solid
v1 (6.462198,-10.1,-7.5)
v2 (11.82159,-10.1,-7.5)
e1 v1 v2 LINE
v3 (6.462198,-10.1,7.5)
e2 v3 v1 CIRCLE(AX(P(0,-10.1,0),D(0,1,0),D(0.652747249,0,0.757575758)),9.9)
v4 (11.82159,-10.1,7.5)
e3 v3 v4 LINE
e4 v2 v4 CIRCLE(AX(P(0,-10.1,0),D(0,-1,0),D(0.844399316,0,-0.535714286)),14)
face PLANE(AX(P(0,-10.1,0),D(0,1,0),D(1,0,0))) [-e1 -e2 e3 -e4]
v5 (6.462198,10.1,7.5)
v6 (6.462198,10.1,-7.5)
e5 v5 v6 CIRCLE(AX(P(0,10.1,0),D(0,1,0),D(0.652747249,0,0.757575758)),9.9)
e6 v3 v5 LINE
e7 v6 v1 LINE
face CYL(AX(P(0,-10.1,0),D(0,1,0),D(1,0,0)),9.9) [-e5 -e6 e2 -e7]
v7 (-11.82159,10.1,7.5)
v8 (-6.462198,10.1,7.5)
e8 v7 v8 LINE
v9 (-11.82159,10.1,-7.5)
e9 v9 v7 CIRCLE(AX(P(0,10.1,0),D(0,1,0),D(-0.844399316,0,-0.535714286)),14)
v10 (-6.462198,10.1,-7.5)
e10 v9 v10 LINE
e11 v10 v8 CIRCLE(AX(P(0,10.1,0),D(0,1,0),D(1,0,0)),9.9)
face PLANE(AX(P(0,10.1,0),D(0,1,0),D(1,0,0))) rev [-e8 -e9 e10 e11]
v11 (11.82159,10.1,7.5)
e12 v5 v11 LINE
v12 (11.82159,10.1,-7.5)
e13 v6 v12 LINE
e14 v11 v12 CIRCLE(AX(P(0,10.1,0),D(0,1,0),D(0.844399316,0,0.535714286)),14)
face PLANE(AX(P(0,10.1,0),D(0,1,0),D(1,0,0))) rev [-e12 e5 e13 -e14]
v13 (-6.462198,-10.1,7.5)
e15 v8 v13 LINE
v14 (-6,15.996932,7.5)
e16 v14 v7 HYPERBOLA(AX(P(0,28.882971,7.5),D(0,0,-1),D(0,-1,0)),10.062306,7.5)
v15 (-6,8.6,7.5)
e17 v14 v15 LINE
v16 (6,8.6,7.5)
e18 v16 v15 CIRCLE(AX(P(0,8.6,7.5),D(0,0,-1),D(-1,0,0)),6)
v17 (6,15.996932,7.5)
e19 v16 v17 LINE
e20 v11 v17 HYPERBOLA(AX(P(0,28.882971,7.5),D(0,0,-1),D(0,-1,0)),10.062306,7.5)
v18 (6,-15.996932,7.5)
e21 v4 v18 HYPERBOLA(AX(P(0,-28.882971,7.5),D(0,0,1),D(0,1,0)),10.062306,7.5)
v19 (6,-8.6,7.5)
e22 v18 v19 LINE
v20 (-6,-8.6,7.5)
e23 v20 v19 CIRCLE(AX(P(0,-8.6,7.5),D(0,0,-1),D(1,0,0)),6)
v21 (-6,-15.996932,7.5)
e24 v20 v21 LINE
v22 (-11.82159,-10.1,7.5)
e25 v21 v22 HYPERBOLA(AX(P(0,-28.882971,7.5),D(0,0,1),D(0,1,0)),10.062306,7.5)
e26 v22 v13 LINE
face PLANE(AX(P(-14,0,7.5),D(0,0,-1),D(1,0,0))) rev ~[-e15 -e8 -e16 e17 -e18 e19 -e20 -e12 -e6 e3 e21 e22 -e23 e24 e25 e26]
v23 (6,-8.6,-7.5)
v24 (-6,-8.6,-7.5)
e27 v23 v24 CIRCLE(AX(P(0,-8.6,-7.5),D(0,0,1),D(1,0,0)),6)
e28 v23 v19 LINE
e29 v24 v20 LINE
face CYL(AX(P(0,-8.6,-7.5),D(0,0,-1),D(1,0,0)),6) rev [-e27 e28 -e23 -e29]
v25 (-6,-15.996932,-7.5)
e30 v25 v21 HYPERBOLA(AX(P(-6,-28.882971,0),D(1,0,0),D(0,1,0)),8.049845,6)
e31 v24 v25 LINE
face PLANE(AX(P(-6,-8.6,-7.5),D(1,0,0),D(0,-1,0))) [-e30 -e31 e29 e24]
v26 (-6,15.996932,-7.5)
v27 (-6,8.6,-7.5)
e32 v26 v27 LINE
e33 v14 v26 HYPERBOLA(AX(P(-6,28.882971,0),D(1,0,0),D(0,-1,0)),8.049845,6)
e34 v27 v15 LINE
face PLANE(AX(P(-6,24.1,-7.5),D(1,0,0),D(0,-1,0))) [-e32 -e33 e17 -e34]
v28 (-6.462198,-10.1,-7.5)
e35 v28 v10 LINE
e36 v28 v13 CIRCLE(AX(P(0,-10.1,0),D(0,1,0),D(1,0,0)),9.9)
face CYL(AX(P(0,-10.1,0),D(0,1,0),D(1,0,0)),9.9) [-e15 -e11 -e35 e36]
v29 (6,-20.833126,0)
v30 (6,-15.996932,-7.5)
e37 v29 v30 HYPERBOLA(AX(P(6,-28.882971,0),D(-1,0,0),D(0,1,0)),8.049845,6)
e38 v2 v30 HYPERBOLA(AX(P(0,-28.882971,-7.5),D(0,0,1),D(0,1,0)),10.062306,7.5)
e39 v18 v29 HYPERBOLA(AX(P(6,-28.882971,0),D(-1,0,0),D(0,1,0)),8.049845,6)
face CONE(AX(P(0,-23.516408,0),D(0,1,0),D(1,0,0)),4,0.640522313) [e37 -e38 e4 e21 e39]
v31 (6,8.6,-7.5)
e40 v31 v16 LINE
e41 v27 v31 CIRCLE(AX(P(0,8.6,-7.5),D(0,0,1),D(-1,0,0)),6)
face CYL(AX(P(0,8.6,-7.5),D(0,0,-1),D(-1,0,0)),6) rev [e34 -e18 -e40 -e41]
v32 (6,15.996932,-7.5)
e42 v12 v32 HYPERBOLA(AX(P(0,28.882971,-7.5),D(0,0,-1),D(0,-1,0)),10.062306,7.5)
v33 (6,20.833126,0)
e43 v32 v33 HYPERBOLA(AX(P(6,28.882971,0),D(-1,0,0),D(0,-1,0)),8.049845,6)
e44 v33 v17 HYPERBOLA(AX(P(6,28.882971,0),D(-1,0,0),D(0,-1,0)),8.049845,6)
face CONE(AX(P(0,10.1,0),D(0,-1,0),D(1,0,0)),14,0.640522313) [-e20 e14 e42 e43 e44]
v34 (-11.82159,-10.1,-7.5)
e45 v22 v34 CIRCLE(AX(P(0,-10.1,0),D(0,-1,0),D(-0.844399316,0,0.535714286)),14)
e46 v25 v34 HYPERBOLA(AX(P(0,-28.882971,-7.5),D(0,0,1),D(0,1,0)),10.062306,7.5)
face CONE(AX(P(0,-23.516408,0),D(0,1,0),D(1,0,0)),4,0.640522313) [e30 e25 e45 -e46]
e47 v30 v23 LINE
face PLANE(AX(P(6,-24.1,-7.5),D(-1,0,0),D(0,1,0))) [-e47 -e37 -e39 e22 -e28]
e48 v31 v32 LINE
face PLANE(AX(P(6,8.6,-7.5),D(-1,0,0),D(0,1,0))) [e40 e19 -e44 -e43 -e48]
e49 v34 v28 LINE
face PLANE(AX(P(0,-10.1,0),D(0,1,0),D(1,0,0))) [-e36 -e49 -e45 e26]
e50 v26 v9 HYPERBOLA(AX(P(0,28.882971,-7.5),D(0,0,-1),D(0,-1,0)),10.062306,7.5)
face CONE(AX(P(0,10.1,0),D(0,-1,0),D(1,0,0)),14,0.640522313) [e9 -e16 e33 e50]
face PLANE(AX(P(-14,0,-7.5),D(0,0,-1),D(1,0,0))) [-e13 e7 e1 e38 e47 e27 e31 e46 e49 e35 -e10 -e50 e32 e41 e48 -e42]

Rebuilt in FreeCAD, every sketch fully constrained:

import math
import FreeCAD as App
import Part
import Sketcher

doc = App.newDocument("Part")
params = doc.addObject("Spreadsheet::Sheet", "Params")
for row, (alias, value) in enumerate([
    ("sketch1_radius", "14 mm"),
    ("sketch1_width", "4.1 mm"),
    ("sketch1_height", "48.2 mm"),
    ("revolution_angle", "360 deg"),
    ("sketch2_width", "28 mm"),
    ("sketch2_height", "15 mm"),
    ("sketch3_radius", "6 mm"),
    ("sketch3_height", "15.5 mm"),
], start=1):
    params.set(f"A{row}", alias)
    params.set(f"B{row}", "=" + value)
    params.setAlias(f"B{row}", alias)

body = doc.addObject("PartDesign::Body", "Body")

# Sketch on XY plane
sketch1 = body.newObject("Sketcher::SketchObject", "Sketch")
sketch1.AttachmentSupport = (doc.getObject("XY_Plane"), [""])
sketch1.MapMode = "FlatFace"
sketch1.addGeometry([
    Part.ArcOfCircle(Part.Circle(App.Vector(0, 10.1, 0), App.Vector(0, 0, 1), 14), math.radians(73.4), math.radians(90)),  # 0
    Part.LineSegment(App.Vector(0, 24.1, 0), App.Vector(0, -24.1, 0)),  # 1
    Part.ArcOfCircle(Part.Circle(App.Vector(0, -10.1, 0), App.Vector(0, 0, 1), 14), math.radians(-90), math.radians(-73.4)),  # 2
    Part.LineSegment(App.Vector(4, -23.5, 0), App.Vector(14, -10.1, 0)),  # 3
    Part.LineSegment(App.Vector(14, -10.1, 0), App.Vector(9.9, -10.1, 0)),  # 4
    Part.LineSegment(App.Vector(9.9, -10.1, 0), App.Vector(9.9, 10.1, 0)),  # 5
    Part.LineSegment(App.Vector(9.9, 10.1, 0), App.Vector(14, 10.1, 0)),  # 6
    Part.LineSegment(App.Vector(14, 10.1, 0), App.Vector(4, 23.5, 0)),  # 7
], False)
sketch1.addConstraint([
    Sketcher.Constraint("Coincident", 0, 2, 1, 1),
    Sketcher.Constraint("Coincident", 1, 2, 2, 1),
    Sketcher.Constraint("Coincident", 2, 2, 3, 1),
    Sketcher.Constraint("Coincident", 3, 2, 4, 1),
    Sketcher.Constraint("Coincident", 4, 2, 5, 1),
    Sketcher.Constraint("Coincident", 5, 2, 6, 1),
    Sketcher.Constraint("Coincident", 6, 2, 7, 1),
    Sketcher.Constraint("Coincident", 7, 2, 0, 1),
    Sketcher.Constraint("Vertical", 1),
    Sketcher.Constraint("Horizontal", 4),
    Sketcher.Constraint("Vertical", 5),
    Sketcher.Constraint("Horizontal", 6),
    Sketcher.Constraint("Equal", 0, 2),
    Sketcher.Constraint("Symmetric", 0, 3, 2, 3, -1, 1),
    Sketcher.Constraint("Symmetric", 3, 2, 6, 2, -1),
    Sketcher.Constraint("Symmetric", 2, 2, 7, 2, -1),
    Sketcher.Constraint("PointOnObject", 0, 2, -2),
    Sketcher.Constraint("Horizontal", 2, 3, 3, 2),
    Sketcher.Constraint("Radius", 0, 14.0),
    Sketcher.Constraint("DistanceX", 4, 2, 4, 1, 4.1),
    Sketcher.Constraint("DistanceY", 1, 2, 1, 1, 48.2),
    Sketcher.Constraint("DistanceX", -1, 1, 2, 2, 4.0),
    Sketcher.Constraint("DistanceX", -1, 1, 3, 2, 14.0),
])
sketch1.setExpression("Constraints[18]", "Params.sketch1_radius")
sketch1.setExpression("Constraints[19]", "Params.sketch1_width")
sketch1.setExpression("Constraints[20]", "Params.sketch1_height")
revolution = body.newObject("PartDesign::Revolution", "Revolution")
revolution.Profile = sketch1
revolution.ReferenceAxis = (sketch1, ["V_Axis"])
revolution.setExpression("Angle", "Params.revolution_angle")

# Sketch on XZ plane
sketch2 = body.newObject("Sketcher::SketchObject", "Sketch001")
sketch2.AttachmentSupport = (doc.getObject("XZ_Plane"), [""])
sketch2.MapMode = "FlatFace"
sketch2.addGeometry([
    Part.LineSegment(App.Vector(-21, -21, 0), App.Vector(-21, 21, 0)),  # 0
    Part.LineSegment(App.Vector(-21, 21, 0), App.Vector(21, 21, 0)),  # 1
    Part.LineSegment(App.Vector(21, 21, 0), App.Vector(21, -21, 0)),  # 2
    Part.LineSegment(App.Vector(21, -21, 0), App.Vector(-21, -21, 0)),  # 3
    Part.LineSegment(App.Vector(14, 8, 0), App.Vector(-14, 8, 0)),  # 4
    Part.LineSegment(App.Vector(-14, 8, 0), App.Vector(-14, -8, 0)),  # 5
    Part.LineSegment(App.Vector(-14, -8, 0), App.Vector(14, -8, 0)),  # 6
    Part.LineSegment(App.Vector(14, -8, 0), App.Vector(14, 8, 0)),  # 7
], False)
sketch2.addConstraint([
    Sketcher.Constraint("Coincident", 0, 2, 1, 1),
    Sketcher.Constraint("Coincident", 1, 2, 2, 1),
    Sketcher.Constraint("Coincident", 2, 2, 3, 1),
    Sketcher.Constraint("Coincident", 3, 2, 0, 1),
    Sketcher.Constraint("Coincident", 4, 2, 5, 1),
    Sketcher.Constraint("Coincident", 5, 2, 6, 1),
    Sketcher.Constraint("Coincident", 6, 2, 7, 1),
    Sketcher.Constraint("Coincident", 7, 2, 4, 1),
    Sketcher.Constraint("Vertical", 0),
    Sketcher.Constraint("Horizontal", 1),
    Sketcher.Constraint("Vertical", 2),
    Sketcher.Constraint("Horizontal", 3),
    Sketcher.Constraint("Horizontal", 4),
    Sketcher.Constraint("Vertical", 5),
    Sketcher.Constraint("Horizontal", 6),
    Sketcher.Constraint("Vertical", 7),
    Sketcher.Constraint("Symmetric", 0, 2, 2, 2, -1, 1),
    Sketcher.Constraint("Symmetric", 4, 2, 6, 2, -1, 1),
    Sketcher.Constraint("Equal", 3, 0),
    Sketcher.Constraint("DistanceX", 4, 2, 4, 1, 28.0),
    Sketcher.Constraint("DistanceY", 5, 2, 5, 1, 15.0),
    Sketcher.Constraint("DistanceX", 1, 1, 1, 2, 42.476),
])
sketch2.setExpression("Constraints[19]", "Params.sketch2_width")
sketch2.setExpression("Constraints[20]", "Params.sketch2_height")
pocket1 = body.newObject("PartDesign::Pocket", "Pocket")
pocket1.Profile = sketch2
pocket1.Type = "ThroughAll"
pocket1.Midplane = True

# Sketch on XY plane
sketch3 = body.newObject("Sketcher::SketchObject", "Sketch002")
sketch3.AttachmentSupport = (doc.getObject("XY_Plane"), [""])
sketch3.MapMode = "FlatFace"
sketch3.AttachmentOffset = App.Placement(App.Vector(0, 0, -7.5), App.Rotation())
sketch3.addGeometry([
    Part.LineSegment(App.Vector(-6, 9, 0), App.Vector(-6, 24, 0)),  # 0
    Part.ArcOfCircle(Part.Circle(App.Vector(0, 24, 0), App.Vector(0, 0, 1), 6), math.radians(0), math.radians(180)),  # 1
    Part.LineSegment(App.Vector(6, 24, 0), App.Vector(6, 9, 0)),  # 2
    Part.ArcOfCircle(Part.Circle(App.Vector(0, 9, 0), App.Vector(0, 0, 1), 6), math.radians(180), math.radians(360)),  # 3
    Part.LineSegment(App.Vector(6, -9, 0), App.Vector(6, -24, 0)),  # 4
    Part.ArcOfCircle(Part.Circle(App.Vector(0, -24, 0), App.Vector(0, 0, 1), 6), math.radians(180), math.radians(360)),  # 5
    Part.LineSegment(App.Vector(-6, -24, 0), App.Vector(-6, -9, 0)),  # 6
    Part.ArcOfCircle(Part.Circle(App.Vector(0, -9, 0), App.Vector(0, 0, 1), 6), math.radians(0), math.radians(180)),  # 7
], False)
sketch3.addConstraint([
    Sketcher.Constraint("Tangent", 0, 2, 1, 2),
    Sketcher.Constraint("Tangent", 1, 1, 2, 1),
    Sketcher.Constraint("Tangent", 2, 2, 3, 2),
    Sketcher.Constraint("Tangent", 3, 1, 0, 1),
    Sketcher.Constraint("Tangent", 4, 2, 5, 2),
    Sketcher.Constraint("Tangent", 5, 1, 6, 1),
    Sketcher.Constraint("Tangent", 6, 2, 7, 2),
    Sketcher.Constraint("Tangent", 7, 1, 4, 1),
    Sketcher.Constraint("Vertical", 0),
    Sketcher.Constraint("Vertical", 2),
    Sketcher.Constraint("Vertical", 4),
    Sketcher.Constraint("Vertical", 6),
    Sketcher.Constraint("Equal", 3, 5),
    Sketcher.Constraint("Symmetric", 1, 3, 5, 3, -1, 1),
    Sketcher.Constraint("Symmetric", 3, 3, 7, 3, -1),
    Sketcher.Constraint("Radius", 1, 6.0),
    Sketcher.Constraint("DistanceY", 0, 1, 0, 2, 15.5),
    Sketcher.Constraint("DistanceY", -1, 1, 1, 3, 24.1),
])
sketch3.setExpression("Constraints[15]", "Params.sketch3_radius")
sketch3.setExpression("Constraints[16]", "Params.sketch3_height")
pocket2 = body.newObject("PartDesign::Pocket", "Pocket001")
pocket2.Profile = sketch3
pocket2.Type = "ThroughAll"
pocket2.Reversed = True

doc.recompute()
